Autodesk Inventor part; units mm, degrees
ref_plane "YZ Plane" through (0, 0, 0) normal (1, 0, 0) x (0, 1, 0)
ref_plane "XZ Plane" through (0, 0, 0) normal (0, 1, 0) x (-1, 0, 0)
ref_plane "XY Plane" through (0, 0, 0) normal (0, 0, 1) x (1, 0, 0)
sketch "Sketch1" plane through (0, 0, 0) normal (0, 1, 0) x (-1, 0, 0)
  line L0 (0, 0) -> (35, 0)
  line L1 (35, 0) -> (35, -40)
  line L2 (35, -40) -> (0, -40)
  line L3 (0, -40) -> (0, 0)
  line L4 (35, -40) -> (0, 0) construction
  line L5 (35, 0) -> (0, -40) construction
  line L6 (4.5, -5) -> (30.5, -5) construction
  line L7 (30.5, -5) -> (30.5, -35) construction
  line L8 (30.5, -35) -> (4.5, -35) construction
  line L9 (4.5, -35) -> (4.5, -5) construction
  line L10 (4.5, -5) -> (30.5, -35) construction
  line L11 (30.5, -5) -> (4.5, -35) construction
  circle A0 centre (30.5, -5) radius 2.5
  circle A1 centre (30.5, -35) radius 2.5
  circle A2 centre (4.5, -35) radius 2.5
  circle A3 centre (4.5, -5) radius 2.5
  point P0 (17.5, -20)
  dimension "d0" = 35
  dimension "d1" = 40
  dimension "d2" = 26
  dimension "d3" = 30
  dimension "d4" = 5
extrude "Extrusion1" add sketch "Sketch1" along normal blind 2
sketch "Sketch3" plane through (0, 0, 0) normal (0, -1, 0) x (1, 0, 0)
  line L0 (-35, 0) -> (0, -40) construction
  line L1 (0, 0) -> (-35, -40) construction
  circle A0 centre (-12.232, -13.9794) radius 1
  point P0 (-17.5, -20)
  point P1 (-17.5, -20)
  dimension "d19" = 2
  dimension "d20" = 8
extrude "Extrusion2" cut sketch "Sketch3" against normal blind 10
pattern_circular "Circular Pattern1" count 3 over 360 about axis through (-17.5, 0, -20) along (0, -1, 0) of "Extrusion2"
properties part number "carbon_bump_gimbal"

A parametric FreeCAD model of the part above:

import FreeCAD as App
import Part
import Sketcher
from FreeCAD import Vector
Q = App.Units.Quantity


def add_polygon(sketch, points):
    """Adds a closed chain of lines whose ends are joined by coincident constraints."""
    first, n = sketch.GeometryCount, len(points)
    for a, b in zip(points, points[1:] + points[:1]):
        sketch.addGeometry(Part.LineSegment(App.Vector(*a, 0), App.Vector(*b, 0)), False)
    for i in range(n):
        sketch.addConstraint(Sketcher.Constraint("Coincident", first + i, 2, first + (i + 1) % n, 1))

doc = App.newDocument("Part")
body = doc.addObject("PartDesign::Body", "Body")

# Sketch on XZ plane
sketch1 = doc.addObject("Sketcher::SketchObject", "Sketch")
body.addObject(sketch1)
sketch1.AttachmentSupport = (doc.XZ_Plane, [""])
sketch1.MapMode = "FlatFace"
add_polygon(sketch1, [(-35, 0), (0, 0), (0, -40), (-35, -40)])  # lines 0-3
sketch1.addGeometry(Part.Circle(Vector(-4.5, -35, 0), Vector(0, 0, 1), 2.5), False)  # 4
sketch1.addGeometry(Part.Circle(Vector(-30.5, -35, 0), Vector(0, 0, 1), 2.5), False)  # 5
sketch1.addGeometry(Part.Circle(Vector(-4.5, -5, 0), Vector(0, 0, 1), 2.5), False)  # 6
sketch1.addGeometry(Part.Circle(Vector(-30.5, -5, 0), Vector(0, 0, 1), 2.5), False)  # 7
sketch1.addConstraint(Sketcher.Constraint("Horizontal", 0))
sketch1.addConstraint(Sketcher.Constraint("Vertical", 1))
sketch1.addConstraint(Sketcher.Constraint("Horizontal", 2))
sketch1.addConstraint(Sketcher.Constraint("Vertical", 3))
sketch1.addConstraint(Sketcher.Constraint("Coincident", 0, 2, -1, 1))
sketch1.addConstraint(Sketcher.Constraint("Equal", 4, 5))
sketch1.addConstraint(Sketcher.Constraint("Equal", 5, 6))
sketch1.addConstraint(Sketcher.Constraint("Equal", 6, 7))
sketch1.addConstraint(Sketcher.Constraint("Horizontal", 4, 3, 5, 3))
sketch1.addConstraint(Sketcher.Constraint("Horizontal", 6, 3, 7, 3))
sketch1.addConstraint(Sketcher.Constraint("Vertical", 4, 3, 6, 3))
sketch1.addConstraint(Sketcher.Constraint("Vertical", 5, 3, 7, 3))
sketch1.addConstraint(Sketcher.Constraint("Diameter", 4, Q("5 mm")))
sketch1.addConstraint(Sketcher.Constraint("DistanceX", 0, 1, 0, 2, Q("35 mm")))
sketch1.addConstraint(Sketcher.Constraint("DistanceY", 1, 2, 1, 1, Q("40 mm")))
sketch1.addConstraint(Sketcher.Constraint("DistanceY", 4, 3, -1, 1, Q("35 mm")))
sketch1.addConstraint(Sketcher.Constraint("DistanceY", 6, 3, -1, 1, Q("5 mm")))
sketch1.addConstraint(Sketcher.Constraint("DistanceX", 5, 3, 4, 3, Q("26 mm")))
sketch1.addConstraint(Sketcher.Constraint("DistanceX", 4, 3, -1, 1, Q("4.5 mm")))
pad1 = doc.addObject("PartDesign::Pad", "Pad")
body.addObject(pad1)
pad1.Profile = sketch1
pad1.Length = 2
pad1.Reversed = True

# Sketch on XZ plane
sketch2 = doc.addObject("Sketcher::SketchObject", "Sketch001")
body.addObject(sketch2)
sketch2.AttachmentSupport = (doc.XZ_Plane, [""])
sketch2.MapMode = "FlatFace"
sketch2.addGeometry(Part.Circle(Vector(-12.2, -14, 0), Vector(0, 0, 1), 1), False)
sketch2.addConstraint(Sketcher.Constraint("Diameter", 0, Q("2 mm")))
sketch2.addConstraint(Sketcher.Constraint("DistanceX", 0, 3, -1, 1, Q("12.232 mm")))
sketch2.addConstraint(Sketcher.Constraint("DistanceY", 0, 3, -1, 1, Q("13.9794 mm")))
pocket1 = doc.addObject("PartDesign::Pocket", "Pocket")
body.addObject(pocket1)
pocket1.Profile = sketch2
pocket1.Length = 10
doc.recompute()

datumline = doc.addObject("PartDesign::Line", "DatumLine")
body.addObject(datumline)
datumline.Placement = App.Placement(Vector(-17.5, 0, -20), App.Rotation(Vector(0, 0, 1), Vector(0, 1, 0)))
polarpattern = doc.addObject("PartDesign::PolarPattern", "PolarPattern")
body.addObject(polarpattern)
polarpattern.Originals = [pocket1]
polarpattern.Axis = (datumline, [""])
polarpattern.Angle = 360
polarpattern.Occurrences = 3
body.Tip = polarpattern

doc.recompute()
